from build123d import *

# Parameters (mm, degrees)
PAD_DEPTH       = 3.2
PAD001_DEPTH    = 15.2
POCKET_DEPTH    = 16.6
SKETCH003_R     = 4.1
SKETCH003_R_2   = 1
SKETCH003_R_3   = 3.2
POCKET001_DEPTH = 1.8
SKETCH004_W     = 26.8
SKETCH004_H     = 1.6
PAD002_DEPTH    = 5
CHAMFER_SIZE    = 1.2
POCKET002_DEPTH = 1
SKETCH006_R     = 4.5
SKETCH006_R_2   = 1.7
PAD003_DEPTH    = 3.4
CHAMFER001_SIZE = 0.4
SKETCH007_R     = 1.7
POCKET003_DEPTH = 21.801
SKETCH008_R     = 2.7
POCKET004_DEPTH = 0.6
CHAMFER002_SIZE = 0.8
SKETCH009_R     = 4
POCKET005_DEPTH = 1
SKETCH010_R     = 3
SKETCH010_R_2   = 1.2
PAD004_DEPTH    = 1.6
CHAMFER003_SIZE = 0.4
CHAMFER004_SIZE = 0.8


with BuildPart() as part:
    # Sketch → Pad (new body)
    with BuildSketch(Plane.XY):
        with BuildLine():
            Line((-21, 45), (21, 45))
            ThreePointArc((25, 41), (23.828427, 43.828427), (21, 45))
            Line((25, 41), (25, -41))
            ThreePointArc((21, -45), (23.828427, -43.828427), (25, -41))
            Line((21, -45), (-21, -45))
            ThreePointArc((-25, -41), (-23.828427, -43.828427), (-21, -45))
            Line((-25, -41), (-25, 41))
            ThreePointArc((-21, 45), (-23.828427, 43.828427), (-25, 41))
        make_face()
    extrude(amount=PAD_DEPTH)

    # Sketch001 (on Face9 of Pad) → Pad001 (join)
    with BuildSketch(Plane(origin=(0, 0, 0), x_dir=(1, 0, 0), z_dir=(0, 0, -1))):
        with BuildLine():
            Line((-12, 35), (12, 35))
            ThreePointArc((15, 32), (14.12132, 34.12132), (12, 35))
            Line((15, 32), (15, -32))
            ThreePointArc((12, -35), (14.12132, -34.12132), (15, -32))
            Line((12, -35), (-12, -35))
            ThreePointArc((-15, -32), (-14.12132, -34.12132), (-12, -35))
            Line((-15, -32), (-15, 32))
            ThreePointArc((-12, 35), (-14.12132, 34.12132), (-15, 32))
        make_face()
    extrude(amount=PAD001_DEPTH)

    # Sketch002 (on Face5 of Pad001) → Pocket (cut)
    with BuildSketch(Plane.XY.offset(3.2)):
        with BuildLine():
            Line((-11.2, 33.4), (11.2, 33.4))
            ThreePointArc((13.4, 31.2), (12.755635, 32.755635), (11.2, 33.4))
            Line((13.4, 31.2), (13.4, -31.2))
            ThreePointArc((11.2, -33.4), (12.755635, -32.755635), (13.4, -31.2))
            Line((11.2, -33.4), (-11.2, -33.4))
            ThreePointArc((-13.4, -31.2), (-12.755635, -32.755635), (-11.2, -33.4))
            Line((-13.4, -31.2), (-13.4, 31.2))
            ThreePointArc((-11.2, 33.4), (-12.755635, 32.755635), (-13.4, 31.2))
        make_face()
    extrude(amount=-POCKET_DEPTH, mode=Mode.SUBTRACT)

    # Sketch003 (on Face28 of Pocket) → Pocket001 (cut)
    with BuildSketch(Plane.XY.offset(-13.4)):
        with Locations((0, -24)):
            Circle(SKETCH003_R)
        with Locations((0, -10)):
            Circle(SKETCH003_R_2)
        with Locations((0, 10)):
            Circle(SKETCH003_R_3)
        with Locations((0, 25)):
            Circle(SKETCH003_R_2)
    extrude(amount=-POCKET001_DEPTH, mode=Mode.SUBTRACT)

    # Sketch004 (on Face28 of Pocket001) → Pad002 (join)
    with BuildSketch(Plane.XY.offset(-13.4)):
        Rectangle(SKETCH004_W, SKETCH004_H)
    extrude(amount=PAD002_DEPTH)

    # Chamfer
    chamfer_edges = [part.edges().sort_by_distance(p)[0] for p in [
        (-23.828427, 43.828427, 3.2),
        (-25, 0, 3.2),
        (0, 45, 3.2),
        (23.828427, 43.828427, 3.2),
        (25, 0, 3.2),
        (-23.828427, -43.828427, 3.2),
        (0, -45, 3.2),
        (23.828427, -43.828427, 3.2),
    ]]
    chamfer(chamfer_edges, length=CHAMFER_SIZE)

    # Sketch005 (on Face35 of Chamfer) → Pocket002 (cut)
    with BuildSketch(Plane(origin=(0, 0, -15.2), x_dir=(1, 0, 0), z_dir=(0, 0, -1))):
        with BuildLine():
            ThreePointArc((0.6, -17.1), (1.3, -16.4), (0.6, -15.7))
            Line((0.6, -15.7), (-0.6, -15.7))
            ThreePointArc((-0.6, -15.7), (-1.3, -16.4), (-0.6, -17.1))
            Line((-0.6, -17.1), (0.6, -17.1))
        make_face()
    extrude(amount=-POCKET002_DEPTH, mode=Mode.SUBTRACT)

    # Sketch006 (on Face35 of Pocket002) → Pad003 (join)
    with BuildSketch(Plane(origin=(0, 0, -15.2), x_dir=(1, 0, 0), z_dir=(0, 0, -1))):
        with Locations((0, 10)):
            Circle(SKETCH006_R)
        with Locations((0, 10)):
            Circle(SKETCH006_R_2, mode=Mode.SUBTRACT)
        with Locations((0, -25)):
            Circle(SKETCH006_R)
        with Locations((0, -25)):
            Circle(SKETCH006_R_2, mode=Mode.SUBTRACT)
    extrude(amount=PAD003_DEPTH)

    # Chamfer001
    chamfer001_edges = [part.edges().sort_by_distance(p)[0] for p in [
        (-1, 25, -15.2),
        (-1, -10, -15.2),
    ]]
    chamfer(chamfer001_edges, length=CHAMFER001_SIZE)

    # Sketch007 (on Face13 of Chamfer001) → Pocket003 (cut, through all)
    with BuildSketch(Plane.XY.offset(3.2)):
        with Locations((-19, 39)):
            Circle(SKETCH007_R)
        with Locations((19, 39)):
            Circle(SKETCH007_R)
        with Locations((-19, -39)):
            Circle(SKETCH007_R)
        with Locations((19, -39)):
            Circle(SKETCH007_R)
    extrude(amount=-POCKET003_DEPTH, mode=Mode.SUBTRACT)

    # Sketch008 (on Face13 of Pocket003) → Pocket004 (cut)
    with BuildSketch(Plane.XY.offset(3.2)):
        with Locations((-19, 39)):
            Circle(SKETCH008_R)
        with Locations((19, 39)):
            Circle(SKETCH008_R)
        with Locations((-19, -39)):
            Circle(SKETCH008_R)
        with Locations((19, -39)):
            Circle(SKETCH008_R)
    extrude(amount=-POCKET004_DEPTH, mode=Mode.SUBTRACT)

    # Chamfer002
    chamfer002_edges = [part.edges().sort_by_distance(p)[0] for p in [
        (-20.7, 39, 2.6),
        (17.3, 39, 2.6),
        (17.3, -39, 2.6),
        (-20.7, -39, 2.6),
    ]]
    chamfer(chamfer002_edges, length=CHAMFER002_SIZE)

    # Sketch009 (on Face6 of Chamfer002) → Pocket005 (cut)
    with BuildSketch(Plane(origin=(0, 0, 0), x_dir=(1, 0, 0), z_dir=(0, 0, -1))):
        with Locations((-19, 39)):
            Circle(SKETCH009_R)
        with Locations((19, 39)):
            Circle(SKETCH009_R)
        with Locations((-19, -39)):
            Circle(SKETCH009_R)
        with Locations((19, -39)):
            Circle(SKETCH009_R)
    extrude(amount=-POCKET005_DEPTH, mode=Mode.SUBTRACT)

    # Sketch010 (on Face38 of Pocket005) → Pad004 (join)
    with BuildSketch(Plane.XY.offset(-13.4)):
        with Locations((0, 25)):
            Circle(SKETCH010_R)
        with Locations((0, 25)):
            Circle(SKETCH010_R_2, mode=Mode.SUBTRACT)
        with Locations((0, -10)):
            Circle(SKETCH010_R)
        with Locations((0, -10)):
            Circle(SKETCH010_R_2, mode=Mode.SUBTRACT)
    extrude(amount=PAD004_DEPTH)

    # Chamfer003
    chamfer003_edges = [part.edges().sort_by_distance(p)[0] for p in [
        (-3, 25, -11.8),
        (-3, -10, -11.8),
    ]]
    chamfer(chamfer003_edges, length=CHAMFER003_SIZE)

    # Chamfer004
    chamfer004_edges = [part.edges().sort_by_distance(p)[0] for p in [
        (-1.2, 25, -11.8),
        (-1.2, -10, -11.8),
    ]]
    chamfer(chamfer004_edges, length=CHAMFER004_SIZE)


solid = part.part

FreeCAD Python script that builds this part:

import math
import FreeCAD as App
import Part
import Sketcher


def edges_at(feature, points):
    """Names of the edges that pass closest to the given points."""
    edges = feature.Shape.Edges
    near = lambda p: min(range(len(edges)), key=lambda i: edges[i].distToShape(Part.Vertex(*p))[0])
    return sorted({f"Edge{near(p) + 1}" for p in points})


def add_polygon(sketch, points):
    """Adds a closed chain of lines whose ends are joined by coincident constraints."""
    first, n = sketch.GeometryCount, len(points)
    for a, b in zip(points, points[1:] + points[:1]):
        sketch.addGeometry(Part.LineSegment(App.Vector(*a, 0), App.Vector(*b, 0)), False)
    for i in range(n):
        sketch.addConstraint(Sketcher.Constraint("Coincident", first + i, 2, first + (i + 1) % n, 1))

doc = App.newDocument("Part")
body = doc.addObject("PartDesign::Body", "Body")

# Sketch on XY plane
sketch1 = doc.addObject("Sketcher::SketchObject", "Sketch")
body.addObject(sketch1)
sketch1.AttachmentSupport = (doc.XY_Plane, [""])
sketch1.MapMode = "FlatFace"
sketch1.addGeometry(Part.LineSegment(App.Vector(21, 45, 0), App.Vector(-21, 45, 0)), False)
sketch1.addGeometry(Part.ArcOfCircle(Part.Circle(App.Vector(-21, 41, 0), App.Vector(0, 0, 1), 4), math.radians(90), math.radians(180)), False)
sketch1.addGeometry(Part.LineSegment(App.Vector(-25, 41, 0), App.Vector(-25, -41, 0)), False)
sketch1.addGeometry(Part.ArcOfCircle(Part.Circle(App.Vector(-21, -41, 0), App.Vector(0, 0, 1), 4), math.radians(-180), math.radians(-90)), False)
sketch1.addGeometry(Part.LineSegment(App.Vector(-21, -45, 0), App.Vector(21, -45, 0)), False)
sketch1.addGeometry(Part.ArcOfCircle(Part.Circle(App.Vector(21, -41, 0), App.Vector(0, 0, 1), 4), math.radians(-90), math.radians(0)), False)
sketch1.addGeometry(Part.LineSegment(App.Vector(25, -41, 0), App.Vector(25, 41, 0)), False)
sketch1.addGeometry(Part.ArcOfCircle(Part.Circle(App.Vector(21, 41, 0), App.Vector(0, 0, 1), 4), math.radians(0), math.radians(90)), False)
sketch1.addConstraint(Sketcher.Constraint("Tangent", 0, 2, 1, 1))
sketch1.addConstraint(Sketcher.Constraint("Tangent", 1, 2, 2, 1))
sketch1.addConstraint(Sketcher.Constraint("Tangent", 2, 2, 3, 1))
sketch1.addConstraint(Sketcher.Constraint("Tangent", 3, 2, 4, 1))
sketch1.addConstraint(Sketcher.Constraint("Tangent", 4, 2, 5, 1))
sketch1.addConstraint(Sketcher.Constraint("Tangent", 5, 2, 6, 1))
sketch1.addConstraint(Sketcher.Constraint("Tangent", 6, 2, 7, 1))
sketch1.addConstraint(Sketcher.Constraint("Tangent", 7, 2, 0, 1))
sketch1.addConstraint(Sketcher.Constraint("Horizontal", 0))
sketch1.addConstraint(Sketcher.Constraint("Vertical", 2))
sketch1.addConstraint(Sketcher.Constraint("Horizontal", 4))
sketch1.addConstraint(Sketcher.Constraint("Vertical", 6))
sketch1.addConstraint(Sketcher.Constraint("Equal", 1, 3))
sketch1.addConstraint(Sketcher.Constraint("Equal", 3, 5))
sketch1.addConstraint(Sketcher.Constraint("Equal", 5, 7))
sketch1.addConstraint(Sketcher.Constraint("Symmetric", 1, 3, 5, 3, -1, 1))
sketch1.addConstraint(Sketcher.Constraint("Radius", 1, 4.0))
sketch1.addConstraint(Sketcher.Constraint("DistanceX", 0, 2, 0, 1, 42.0))
sketch1.addConstraint(Sketcher.Constraint("DistanceY", 2, 2, 2, 1, 82.0))
pad1 = doc.addObject("PartDesign::Pad", "Pad")
body.addObject(pad1)
pad1.Profile = sketch1
pad1.Length = 3.2

# Sketch on XY plane
sketch2 = doc.addObject("Sketcher::SketchObject", "Sketch001")
body.addObject(sketch2)
sketch2.AttachmentSupport = (doc.XY_Plane, [""])
sketch2.MapMode = "FlatFace"
sketch2.addGeometry(Part.LineSegment(App.Vector(12, -35, 0), App.Vector(-12, -35, 0)), False)
sketch2.addGeometry(Part.ArcOfCircle(Part.Circle(App.Vector(-12, -32, 0), App.Vector(0, 0, 1), 3), math.radians(-180), math.radians(-90)), False)
sketch2.addGeometry(Part.LineSegment(App.Vector(-15, -32, 0), App.Vector(-15, 32, 0)), False)
sketch2.addGeometry(Part.ArcOfCircle(Part.Circle(App.Vector(-12, 32, 0), App.Vector(0, 0, 1), 3), math.radians(90), math.radians(180)), False)
sketch2.addGeometry(Part.LineSegment(App.Vector(-12, 35, 0), App.Vector(12, 35, 0)), False)
sketch2.addGeometry(Part.ArcOfCircle(Part.Circle(App.Vector(12, 32, 0), App.Vector(0, 0, 1), 3), math.radians(0), math.radians(90)), False)
sketch2.addGeometry(Part.LineSegment(App.Vector(15, 32, 0), App.Vector(15, -32, 0)), False)
sketch2.addGeometry(Part.ArcOfCircle(Part.Circle(App.Vector(12, -32, 0), App.Vector(0, 0, 1), 3), math.radians(-90), math.radians(0)), False)
sketch2.addConstraint(Sketcher.Constraint("Tangent", 0, 2, 1, 2))
sketch2.addConstraint(Sketcher.Constraint("Tangent", 1, 1, 2, 1))
sketch2.addConstraint(Sketcher.Constraint("Tangent", 2, 2, 3, 2))
sketch2.addConstraint(Sketcher.Constraint("Tangent", 3, 1, 4, 1))
sketch2.addConstraint(Sketcher.Constraint("Tangent", 4, 2, 5, 2))
sketch2.addConstraint(Sketcher.Constraint("Tangent", 5, 1, 6, 1))
sketch2.addConstraint(Sketcher.Constraint("Tangent", 6, 2, 7, 2))
sketch2.addConstraint(Sketcher.Constraint("Tangent", 7, 1, 0, 1))
sketch2.addConstraint(Sketcher.Constraint("Horizontal", 0))
sketch2.addConstraint(Sketcher.Constraint("Vertical", 2))
sketch2.addConstraint(Sketcher.Constraint("Horizontal", 4))
sketch2.addConstraint(Sketcher.Constraint("Vertical", 6))
sketch2.addConstraint(Sketcher.Constraint("Equal", 1, 3))
sketch2.addConstraint(Sketcher.Constraint("Equal", 3, 5))
sketch2.addConstraint(Sketcher.Constraint("Equal", 5, 7))
sketch2.addConstraint(Sketcher.Constraint("Symmetric", 1, 3, 5, 3, -1, 1))
sketch2.addConstraint(Sketcher.Constraint("Radius", 1, 3.000001))
sketch2.addConstraint(Sketcher.Constraint("DistanceX", 0, 2, 0, 1, 24.0))
sketch2.addConstraint(Sketcher.Constraint("DistanceY", 2, 1, 2, 2, 64.0))
pad2 = doc.addObject("PartDesign::Pad", "Pad001")
body.addObject(pad2)
pad2.Profile = sketch2
pad2.Length = 15.2
pad2.Reversed = True

# Sketch on XY plane
sketch3 = doc.addObject("Sketcher::SketchObject", "Sketch002")
body.addObject(sketch3)
sketch3.AttachmentSupport = (doc.XY_Plane, [""])
sketch3.MapMode = "FlatFace"
sketch3.AttachmentOffset = App.Placement(App.Vector(0, 0, 3.2), App.Rotation())
sketch3.addGeometry(Part.LineSegment(App.Vector(11.2, 33.4, 0), App.Vector(-11.2, 33.4, 0)), False)
sketch3.addGeometry(Part.ArcOfCircle(Part.Circle(App.Vector(-11.2, 31.2, 0), App.Vector(0, 0, 1), 2.2), math.radians(90), math.radians(180)), False)
sketch3.addGeometry(Part.LineSegment(App.Vector(-13.4, 31.2, 0), App.Vector(-13.4, -31.2, 0)), False)
sketch3.addGeometry(Part.ArcOfCircle(Part.Circle(App.Vector(-11.2, -31.2, 0), App.Vector(0, 0, 1), 2.2), math.radians(180), math.radians(270)), False)
sketch3.addGeometry(Part.LineSegment(App.Vector(-11.2, -33.4, 0), App.Vector(11.2, -33.4, 0)), False)
sketch3.addGeometry(Part.ArcOfCircle(Part.Circle(App.Vector(11.2, -31.2, 0), App.Vector(0, 0, 1), 2.2), math.radians(-90), math.radians(0)), False)
sketch3.addGeometry(Part.LineSegment(App.Vector(13.4, -31.2, 0), App.Vector(13.4, 31.2, 0)), False)
sketch3.addGeometry(Part.ArcOfCircle(Part.Circle(App.Vector(11.2, 31.2, 0), App.Vector(0, 0, 1), 2.2), math.radians(0), math.radians(90)), False)
sketch3.addConstraint(Sketcher.Constraint("Tangent", 0, 2, 1, 1))
sketch3.addConstraint(Sketcher.Constraint("Tangent", 1, 2, 2, 1))
sketch3.addConstraint(Sketcher.Constraint("Tangent", 2, 2, 3, 1))
sketch3.addConstraint(Sketcher.Constraint("Tangent", 3, 2, 4, 1))
sketch3.addConstraint(Sketcher.Constraint("Tangent", 4, 2, 5, 1))
sketch3.addConstraint(Sketcher.Constraint("Tangent", 5, 2, 6, 1))
sketch3.addConstraint(Sketcher.Constraint("Tangent", 6, 2, 7, 1))
sketch3.addConstraint(Sketcher.Constraint("Tangent", 7, 2, 0, 1))
sketch3.addConstraint(Sketcher.Constraint("Horizontal", 0))
sketch3.addConstraint(Sketcher.Constraint("Vertical", 2))
sketch3.addConstraint(Sketcher.Constraint("Horizontal", 4))
sketch3.addConstraint(Sketcher.Constraint("Vertical", 6))
sketch3.addConstraint(Sketcher.Constraint("Equal", 1, 3))
sketch3.addConstraint(Sketcher.Constraint("Equal", 3, 5))
sketch3.addConstraint(Sketcher.Constraint("Equal", 5, 7))
sketch3.addConstraint(Sketcher.Constraint("Symmetric", 1, 3, 5, 3, -1, 1))
sketch3.addConstraint(Sketcher.Constraint("Radius", 1, 2.2))
sketch3.addConstraint(Sketcher.Constraint("DistanceX", 0, 2, 0, 1, 22.4))
sketch3.addConstraint(Sketcher.Constraint("DistanceY", 2, 2, 2, 1, 62.4))
pocket1 = doc.addObject("PartDesign::Pocket", "Pocket")
body.addObject(pocket1)
pocket1.Profile = sketch3
pocket1.Length = 16.6

# Sketch on XY plane
sketch4 = doc.addObject("Sketcher::SketchObject", "Sketch003")
body.addObject(sketch4)
sketch4.AttachmentSupport = (doc.XY_Plane, [""])
sketch4.MapMode = "FlatFace"
sketch4.AttachmentOffset = App.Placement(App.Vector(0, 0, -13.4), App.Rotation())
sketch4.addGeometry(Part.Circle(App.Vector(0, -24, 0), App.Vector(0, 0, 1), 4.1), False)
sketch4.addGeometry(Part.Circle(App.Vector(0, -10, 0), App.Vector(0, 0, 1), 1), False)
sketch4.addGeometry(Part.Circle(App.Vector(0, 10, 0), App.Vector(0, 0, 1), 3.2), False)
sketch4.addGeometry(Part.Circle(App.Vector(0, 25, 0), App.Vector(0, 0, 1), 1), False)
sketch4.addConstraint(Sketcher.Constraint("Equal", 1, 3))
sketch4.addConstraint(Sketcher.Constraint("Symmetric", 1, 3, 2, 3, -1, 1))
sketch4.addConstraint(Sketcher.Constraint("PointOnObject", 0, 3, -2))
sketch4.addConstraint(Sketcher.Constraint("PointOnObject", 1, 3, -2))
sketch4.addConstraint(Sketcher.Constraint("PointOnObject", 3, 3, -2))
sketch4.addConstraint(Sketcher.Constraint("Diameter", 1, 2.0))
sketch4.addConstraint(Sketcher.Constraint("Diameter", 0, 8.2))
sketch4.addConstraint(Sketcher.Constraint("Diameter", 2, 6.4))
sketch4.addConstraint(Sketcher.Constraint("DistanceY", 0, 3, -1, 1, 24.0))
sketch4.addConstraint(Sketcher.Constraint("DistanceY", 1, 3, -1, 1, 10.0))
sketch4.addConstraint(Sketcher.Constraint("DistanceY", -1, 1, 3, 3, 25.0))
pocket2 = doc.addObject("PartDesign::Pocket", "Pocket001")
body.addObject(pocket2)
pocket2.Profile = sketch4
pocket2.Length = 1.8

# Sketch on XY plane
sketch5 = doc.addObject("Sketcher::SketchObject", "Sketch004")
body.addObject(sketch5)
sketch5.AttachmentSupport = (doc.XY_Plane, [""])
sketch5.MapMode = "FlatFace"
sketch5.AttachmentOffset = App.Placement(App.Vector(0, 0, -13.4), App.Rotation())
add_polygon(sketch5, [(-13.4, 0.8), (-13.4, -0.8), (13.4, -0.8), (13.4, 0.8)])  # lines 0-3
sketch5.addConstraint(Sketcher.Constraint("Vertical", 0))
sketch5.addConstraint(Sketcher.Constraint("Horizontal", 1))
sketch5.addConstraint(Sketcher.Constraint("Vertical", 2))
sketch5.addConstraint(Sketcher.Constraint("Horizontal", 3))
sketch5.addConstraint(Sketcher.Constraint("Symmetric", 0, 2, 2, 2, -1, 1))
sketch5.addConstraint(Sketcher.Constraint("DistanceX", 1, 1, 1, 2, 26.8))
sketch5.addConstraint(Sketcher.Constraint("DistanceY", 0, 2, 0, 1, 1.6))
pad3 = doc.addObject("PartDesign::Pad", "Pad002")
body.addObject(pad3)
pad3.Profile = sketch5
pad3.Length = 5
doc.recompute()

chamfer = doc.addObject("PartDesign::Chamfer", "Chamfer")
body.addObject(chamfer)
chamfer.Base = (pad3, edges_at(pad3, [
    (-23.828, 43.828, 3.2),
    (-25, 0, 3.2),
    (0, 45, 3.2),
    (23.828, 43.828, 3.2),
    (25, 0, 3.2),
    (-23.828, -43.828, 3.2),
    (0, -45, 3.2),
    (23.828, -43.828, 3.2),
]))
chamfer.Size = 1.2

# Sketch on XY plane
sketch6 = doc.addObject("Sketcher::SketchObject", "Sketch005")
body.addObject(sketch6)
sketch6.AttachmentSupport = (doc.XY_Plane, [""])
sketch6.MapMode = "FlatFace"
sketch6.AttachmentOffset = App.Placement(App.Vector(0, 0, -15.2), App.Rotation())
sketch6.addGeometry(Part.ArcOfCircle(Part.Circle(App.Vector(0.6, 16.4, 0), App.Vector(0, 0, 1), 0.7), math.radians(-90), math.radians(90)), False)
sketch6.addGeometry(Part.LineSegment(App.Vector(0.6, 15.7, 0), App.Vector(-0.6, 15.7, 0)), False)
sketch6.addGeometry(Part.ArcOfCircle(Part.Circle(App.Vector(-0.6, 16.4, 0), App.Vector(0, 0, 1), 0.7), math.radians(90), math.radians(270)), False)
sketch6.addGeometry(Part.LineSegment(App.Vector(-0.6, 17.1, 0), App.Vector(0.6, 17.1, 0)), False)
sketch6.addConstraint(Sketcher.Constraint("Tangent", 0, 1, 1, 1))
sketch6.addConstraint(Sketcher.Constraint("Tangent", 1, 2, 2, 2))
sketch6.addConstraint(Sketcher.Constraint("Tangent", 2, 1, 3, 1))
sketch6.addConstraint(Sketcher.Constraint("Tangent", 3, 2, 0, 2))
sketch6.addConstraint(Sketcher.Constraint("Horizontal", 1))
sketch6.addConstraint(Sketcher.Constraint("Horizontal", 3))
sketch6.addConstraint(Sketcher.Constraint("Radius", 0, 0.7))
sketch6.addConstraint(Sketcher.Constraint("DistanceX", 1, 2, 1, 1, 1.2))
sketch6.addConstraint(Sketcher.Constraint("DistanceX", -1, 1, 0, 3, 0.6))
sketch6.addConstraint(Sketcher.Constraint("DistanceY", -1, 1, 0, 3, 16.4))
pocket3 = doc.addObject("PartDesign::Pocket", "Pocket002")
body.addObject(pocket3)
pocket3.Profile = sketch6
pocket3.Length = 1
pocket3.Reversed = True

# Sketch on XY plane
sketch7 = doc.addObject("Sketcher::SketchObject", "Sketch006")
body.addObject(sketch7)
sketch7.AttachmentSupport = (doc.XY_Plane, [""])
sketch7.MapMode = "FlatFace"
sketch7.AttachmentOffset = App.Placement(App.Vector(0, 0, -15.2), App.Rotation())
sketch7.addGeometry(Part.Circle(App.Vector(0, -10, 0), App.Vector(0, 0, 1), 4.5), False)
sketch7.addGeometry(Part.Circle(App.Vector(0, -10, 0), App.Vector(0, 0, 1), 1.7), False)
sketch7.addGeometry(Part.Circle(App.Vector(0, 25, 0), App.Vector(0, 0, 1), 4.5), False)
sketch7.addGeometry(Part.Circle(App.Vector(0, 25, 0), App.Vector(0, 0, 1), 1.7), False)
sketch7.addConstraint(Sketcher.Constraint("Coincident", 1, 3, 0, 3))
sketch7.addConstraint(Sketcher.Constraint("Coincident", 3, 3, 2, 3))
sketch7.addConstraint(Sketcher.Constraint("Equal", 0, 2))
sketch7.addConstraint(Sketcher.Constraint("Equal", 1, 3))
sketch7.addConstraint(Sketcher.Constraint("PointOnObject", 0, 3, -2))
sketch7.addConstraint(Sketcher.Constraint("PointOnObject", 2, 3, -2))
sketch7.addConstraint(Sketcher.Constraint("Diameter", 0, 9.0))
sketch7.addConstraint(Sketcher.Constraint("Diameter", 1, 3.4))
sketch7.addConstraint(Sketcher.Constraint("DistanceY", 0, 3, -1, 1, 10.0))
sketch7.addConstraint(Sketcher.Constraint("DistanceY", -1, 1, 2, 3, 25.0))
pad4 = doc.addObject("PartDesign::Pad", "Pad003")
body.addObject(pad4)
pad4.Profile = sketch7
pad4.Length = 3.4
pad4.Reversed = True
doc.recompute()

chamfer2 = doc.addObject("PartDesign::Chamfer", "Chamfer001")
body.addObject(chamfer2)
chamfer2.Base = (pad4, edges_at(pad4, [(-1, 25, -15.2), (-1, -10, -15.2)]))
chamfer2.Size = 0.4

# Sketch on XY plane
sketch8 = doc.addObject("Sketcher::SketchObject", "Sketch007")
body.addObject(sketch8)
sketch8.AttachmentSupport = (doc.XY_Plane, [""])
sketch8.MapMode = "FlatFace"
sketch8.AttachmentOffset = App.Placement(App.Vector(0, 0, 3.2), App.Rotation())
sketch8.addGeometry(Part.Circle(App.Vector(-19, 39, 0), App.Vector(0, 0, 1), 1.7), False)
sketch8.addGeometry(Part.Circle(App.Vector(19, 39, 0), App.Vector(0, 0, 1), 1.7), False)
sketch8.addGeometry(Part.Circle(App.Vector(-19, -39, 0), App.Vector(0, 0, 1), 1.7), False)
sketch8.addGeometry(Part.Circle(App.Vector(19, -39, 0), App.Vector(0, 0, 1), 1.7), False)
sketch8.addConstraint(Sketcher.Constraint("Equal", 0, 1))
sketch8.addConstraint(Sketcher.Constraint("Equal", 1, 2))
sketch8.addConstraint(Sketcher.Constraint("Equal", 2, 3))
sketch8.addConstraint(Sketcher.Constraint("Symmetric", 1, 3, 2, 3, -1, 1))
sketch8.addConstraint(Sketcher.Constraint("Symmetric", 0, 3, 3, 3, -1, 1))
sketch8.addConstraint(Sketcher.Constraint("Symmetric", 0, 3, 1, 3, -2))
sketch8.addConstraint(Sketcher.Constraint("Diameter", 0, 3.4))
sketch8.addConstraint(Sketcher.Constraint("DistanceX", 0, 3, -1, 1, 19.0))
sketch8.addConstraint(Sketcher.Constraint("DistanceY", -1, 1, 0, 3, 39.0))
pocket4 = doc.addObject("PartDesign::Pocket", "Pocket003")
body.addObject(pocket4)
pocket4.Profile = sketch8
pocket4.Type = "ThroughAll"

# Sketch on XY plane
sketch9 = doc.addObject("Sketcher::SketchObject", "Sketch008")
body.addObject(sketch9)
sketch9.AttachmentSupport = (doc.XY_Plane, [""])
sketch9.MapMode = "FlatFace"
sketch9.AttachmentOffset = App.Placement(App.Vector(0, 0, 3.2), App.Rotation())
sketch9.addGeometry(Part.Circle(App.Vector(-19, 39, 0), App.Vector(0, 0, 1), 2.7), False)
sketch9.addGeometry(Part.Circle(App.Vector(19, 39, 0), App.Vector(0, 0, 1), 2.7), False)
sketch9.addGeometry(Part.Circle(App.Vector(-19, -39, 0), App.Vector(0, 0, 1), 2.7), False)
sketch9.addGeometry(Part.Circle(App.Vector(19, -39, 0), App.Vector(0, 0, 1), 2.7), False)
sketch9.addConstraint(Sketcher.Constraint("Equal", 0, 1))
sketch9.addConstraint(Sketcher.Constraint("Equal", 1, 2))
sketch9.addConstraint(Sketcher.Constraint("Equal", 2, 3))
sketch9.addConstraint(Sketcher.Constraint("Symmetric", 1, 3, 2, 3, -1, 1))
sketch9.addConstraint(Sketcher.Constraint("Symmetric", 0, 3, 3, 3, -1, 1))
sketch9.addConstraint(Sketcher.Constraint("Symmetric", 0, 3, 1, 3, -2))
sketch9.addConstraint(Sketcher.Constraint("Diameter", 0, 5.4))
sketch9.addConstraint(Sketcher.Constraint("DistanceX", 0, 3, -1, 1, 19.0))
sketch9.addConstraint(Sketcher.Constraint("DistanceY", -1, 1, 0, 3, 39.0))
pocket5 = doc.addObject("PartDesign::Pocket", "Pocket004")
body.addObject(pocket5)
pocket5.Profile = sketch9
pocket5.Length = 0.6
doc.recompute()

chamfer3 = doc.addObject("PartDesign::Chamfer", "Chamfer002")
body.addObject(chamfer3)
chamfer3.Base = (pocket5, edges_at(pocket5, [
    (-20.7, 39, 2.6),
    (17.3, 39, 2.6),
    (17.3, -39, 2.6),
    (-20.7, -39, 2.6),
]))
chamfer3.Size = 0.8

# Sketch on XY plane
sketch10 = doc.addObject("Sketcher::SketchObject", "Sketch009")
body.addObject(sketch10)
sketch10.AttachmentSupport = (doc.XY_Plane, [""])
sketch10.MapMode = "FlatFace"
sketch10.addGeometry(Part.Circle(App.Vector(-19, -39, 0), App.Vector(0, 0, 1), 4), False)
sketch10.addGeometry(Part.Circle(App.Vector(19, -39, 0), App.Vector(0, 0, 1), 4), False)
sketch10.addGeometry(Part.Circle(App.Vector(-19, 39, 0), App.Vector(0, 0, 1), 4), False)
sketch10.addGeometry(Part.Circle(App.Vector(19, 39, 0), App.Vector(0, 0, 1), 4), False)
sketch10.addConstraint(Sketcher.Constraint("Equal", 0, 1))
sketch10.addConstraint(Sketcher.Constraint("Equal", 1, 2))
sketch10.addConstraint(Sketcher.Constraint("Equal", 2, 3))
sketch10.addConstraint(Sketcher.Constraint("Symmetric", 1, 3, 2, 3, -1, 1))
sketch10.addConstraint(Sketcher.Constraint("Symmetric", 0, 3, 3, 3, -1, 1))
sketch10.addConstraint(Sketcher.Constraint("Symmetric", 0, 3, 1, 3, -2))
sketch10.addConstraint(Sketcher.Constraint("Diameter", 0, 8.0))
sketch10.addConstraint(Sketcher.Constraint("DistanceX", 0, 3, -1, 1, 19.0))
sketch10.addConstraint(Sketcher.Constraint("DistanceY", 0, 3, -1, 1, 39.0))
pocket6 = doc.addObject("PartDesign::Pocket", "Pocket005")
body.addObject(pocket6)
pocket6.Profile = sketch10
pocket6.Length = 1
pocket6.Reversed = True

# Sketch on XY plane
sketch11 = doc.addObject("Sketcher::SketchObject", "Sketch010")
body.addObject(sketch11)
sketch11.AttachmentSupport = (doc.XY_Plane, [""])
sketch11.MapMode = "FlatFace"
sketch11.AttachmentOffset = App.Placement(App.Vector(0, 0, -13.4), App.Rotation())
sketch11.addGeometry(Part.Circle(App.Vector(0, 25, 0), App.Vector(0, 0, 1), 3), False)
sketch11.addGeometry(Part.Circle(App.Vector(0, 25, 0), App.Vector(0, 0, 1), 1.2), False)
sketch11.addGeometry(Part.Circle(App.Vector(0, -10, 0), App.Vector(0, 0, 1), 3), False)
sketch11.addGeometry(Part.Circle(App.Vector(0, -10, 0), App.Vector(0, 0, 1), 1.2), False)
sketch11.addConstraint(Sketcher.Constraint("Coincident", 1, 3, 0, 3))
sketch11.addConstraint(Sketcher.Constraint("Coincident", 3, 3, 2, 3))
sketch11.addConstraint(Sketcher.Constraint("Equal", 0, 2))
sketch11.addConstraint(Sketcher.Constraint("Equal", 1, 3))
sketch11.addConstraint(Sketcher.Constraint("PointOnObject", 0, 3, -2))
sketch11.addConstraint(Sketcher.Constraint("PointOnObject", 2, 3, -2))
sketch11.addConstraint(Sketcher.Constraint("Diameter", 0, 6.0))
sketch11.addConstraint(Sketcher.Constraint("Diameter", 1, 2.4))
sketch11.addConstraint(Sketcher.Constraint("DistanceY", -1, 1, 0, 3, 25.0))
sketch11.addConstraint(Sketcher.Constraint("DistanceY", 2, 3, -1, 1, 10.0))
pad5 = doc.addObject("PartDesign::Pad", "Pad004")
body.addObject(pad5)
pad5.Profile = sketch11
pad5.Length = 1.6
doc.recompute()

chamfer4 = doc.addObject("PartDesign::Chamfer", "Chamfer003")
body.addObject(chamfer4)
chamfer4.Base = (pad5, edges_at(pad5, [(-3, 25, -11.8), (-3, -10, -11.8)]))
chamfer4.Size = 0.4
doc.recompute()

chamfer5 = doc.addObject("PartDesign::Chamfer", "Chamfer004")
body.addObject(chamfer5)
chamfer5.Base = (chamfer4, edges_at(chamfer4, [(-1.2, 25, -11.8), (-1.2, -10, -11.8)]))
chamfer5.Size = 0.8

doc.recompute()
